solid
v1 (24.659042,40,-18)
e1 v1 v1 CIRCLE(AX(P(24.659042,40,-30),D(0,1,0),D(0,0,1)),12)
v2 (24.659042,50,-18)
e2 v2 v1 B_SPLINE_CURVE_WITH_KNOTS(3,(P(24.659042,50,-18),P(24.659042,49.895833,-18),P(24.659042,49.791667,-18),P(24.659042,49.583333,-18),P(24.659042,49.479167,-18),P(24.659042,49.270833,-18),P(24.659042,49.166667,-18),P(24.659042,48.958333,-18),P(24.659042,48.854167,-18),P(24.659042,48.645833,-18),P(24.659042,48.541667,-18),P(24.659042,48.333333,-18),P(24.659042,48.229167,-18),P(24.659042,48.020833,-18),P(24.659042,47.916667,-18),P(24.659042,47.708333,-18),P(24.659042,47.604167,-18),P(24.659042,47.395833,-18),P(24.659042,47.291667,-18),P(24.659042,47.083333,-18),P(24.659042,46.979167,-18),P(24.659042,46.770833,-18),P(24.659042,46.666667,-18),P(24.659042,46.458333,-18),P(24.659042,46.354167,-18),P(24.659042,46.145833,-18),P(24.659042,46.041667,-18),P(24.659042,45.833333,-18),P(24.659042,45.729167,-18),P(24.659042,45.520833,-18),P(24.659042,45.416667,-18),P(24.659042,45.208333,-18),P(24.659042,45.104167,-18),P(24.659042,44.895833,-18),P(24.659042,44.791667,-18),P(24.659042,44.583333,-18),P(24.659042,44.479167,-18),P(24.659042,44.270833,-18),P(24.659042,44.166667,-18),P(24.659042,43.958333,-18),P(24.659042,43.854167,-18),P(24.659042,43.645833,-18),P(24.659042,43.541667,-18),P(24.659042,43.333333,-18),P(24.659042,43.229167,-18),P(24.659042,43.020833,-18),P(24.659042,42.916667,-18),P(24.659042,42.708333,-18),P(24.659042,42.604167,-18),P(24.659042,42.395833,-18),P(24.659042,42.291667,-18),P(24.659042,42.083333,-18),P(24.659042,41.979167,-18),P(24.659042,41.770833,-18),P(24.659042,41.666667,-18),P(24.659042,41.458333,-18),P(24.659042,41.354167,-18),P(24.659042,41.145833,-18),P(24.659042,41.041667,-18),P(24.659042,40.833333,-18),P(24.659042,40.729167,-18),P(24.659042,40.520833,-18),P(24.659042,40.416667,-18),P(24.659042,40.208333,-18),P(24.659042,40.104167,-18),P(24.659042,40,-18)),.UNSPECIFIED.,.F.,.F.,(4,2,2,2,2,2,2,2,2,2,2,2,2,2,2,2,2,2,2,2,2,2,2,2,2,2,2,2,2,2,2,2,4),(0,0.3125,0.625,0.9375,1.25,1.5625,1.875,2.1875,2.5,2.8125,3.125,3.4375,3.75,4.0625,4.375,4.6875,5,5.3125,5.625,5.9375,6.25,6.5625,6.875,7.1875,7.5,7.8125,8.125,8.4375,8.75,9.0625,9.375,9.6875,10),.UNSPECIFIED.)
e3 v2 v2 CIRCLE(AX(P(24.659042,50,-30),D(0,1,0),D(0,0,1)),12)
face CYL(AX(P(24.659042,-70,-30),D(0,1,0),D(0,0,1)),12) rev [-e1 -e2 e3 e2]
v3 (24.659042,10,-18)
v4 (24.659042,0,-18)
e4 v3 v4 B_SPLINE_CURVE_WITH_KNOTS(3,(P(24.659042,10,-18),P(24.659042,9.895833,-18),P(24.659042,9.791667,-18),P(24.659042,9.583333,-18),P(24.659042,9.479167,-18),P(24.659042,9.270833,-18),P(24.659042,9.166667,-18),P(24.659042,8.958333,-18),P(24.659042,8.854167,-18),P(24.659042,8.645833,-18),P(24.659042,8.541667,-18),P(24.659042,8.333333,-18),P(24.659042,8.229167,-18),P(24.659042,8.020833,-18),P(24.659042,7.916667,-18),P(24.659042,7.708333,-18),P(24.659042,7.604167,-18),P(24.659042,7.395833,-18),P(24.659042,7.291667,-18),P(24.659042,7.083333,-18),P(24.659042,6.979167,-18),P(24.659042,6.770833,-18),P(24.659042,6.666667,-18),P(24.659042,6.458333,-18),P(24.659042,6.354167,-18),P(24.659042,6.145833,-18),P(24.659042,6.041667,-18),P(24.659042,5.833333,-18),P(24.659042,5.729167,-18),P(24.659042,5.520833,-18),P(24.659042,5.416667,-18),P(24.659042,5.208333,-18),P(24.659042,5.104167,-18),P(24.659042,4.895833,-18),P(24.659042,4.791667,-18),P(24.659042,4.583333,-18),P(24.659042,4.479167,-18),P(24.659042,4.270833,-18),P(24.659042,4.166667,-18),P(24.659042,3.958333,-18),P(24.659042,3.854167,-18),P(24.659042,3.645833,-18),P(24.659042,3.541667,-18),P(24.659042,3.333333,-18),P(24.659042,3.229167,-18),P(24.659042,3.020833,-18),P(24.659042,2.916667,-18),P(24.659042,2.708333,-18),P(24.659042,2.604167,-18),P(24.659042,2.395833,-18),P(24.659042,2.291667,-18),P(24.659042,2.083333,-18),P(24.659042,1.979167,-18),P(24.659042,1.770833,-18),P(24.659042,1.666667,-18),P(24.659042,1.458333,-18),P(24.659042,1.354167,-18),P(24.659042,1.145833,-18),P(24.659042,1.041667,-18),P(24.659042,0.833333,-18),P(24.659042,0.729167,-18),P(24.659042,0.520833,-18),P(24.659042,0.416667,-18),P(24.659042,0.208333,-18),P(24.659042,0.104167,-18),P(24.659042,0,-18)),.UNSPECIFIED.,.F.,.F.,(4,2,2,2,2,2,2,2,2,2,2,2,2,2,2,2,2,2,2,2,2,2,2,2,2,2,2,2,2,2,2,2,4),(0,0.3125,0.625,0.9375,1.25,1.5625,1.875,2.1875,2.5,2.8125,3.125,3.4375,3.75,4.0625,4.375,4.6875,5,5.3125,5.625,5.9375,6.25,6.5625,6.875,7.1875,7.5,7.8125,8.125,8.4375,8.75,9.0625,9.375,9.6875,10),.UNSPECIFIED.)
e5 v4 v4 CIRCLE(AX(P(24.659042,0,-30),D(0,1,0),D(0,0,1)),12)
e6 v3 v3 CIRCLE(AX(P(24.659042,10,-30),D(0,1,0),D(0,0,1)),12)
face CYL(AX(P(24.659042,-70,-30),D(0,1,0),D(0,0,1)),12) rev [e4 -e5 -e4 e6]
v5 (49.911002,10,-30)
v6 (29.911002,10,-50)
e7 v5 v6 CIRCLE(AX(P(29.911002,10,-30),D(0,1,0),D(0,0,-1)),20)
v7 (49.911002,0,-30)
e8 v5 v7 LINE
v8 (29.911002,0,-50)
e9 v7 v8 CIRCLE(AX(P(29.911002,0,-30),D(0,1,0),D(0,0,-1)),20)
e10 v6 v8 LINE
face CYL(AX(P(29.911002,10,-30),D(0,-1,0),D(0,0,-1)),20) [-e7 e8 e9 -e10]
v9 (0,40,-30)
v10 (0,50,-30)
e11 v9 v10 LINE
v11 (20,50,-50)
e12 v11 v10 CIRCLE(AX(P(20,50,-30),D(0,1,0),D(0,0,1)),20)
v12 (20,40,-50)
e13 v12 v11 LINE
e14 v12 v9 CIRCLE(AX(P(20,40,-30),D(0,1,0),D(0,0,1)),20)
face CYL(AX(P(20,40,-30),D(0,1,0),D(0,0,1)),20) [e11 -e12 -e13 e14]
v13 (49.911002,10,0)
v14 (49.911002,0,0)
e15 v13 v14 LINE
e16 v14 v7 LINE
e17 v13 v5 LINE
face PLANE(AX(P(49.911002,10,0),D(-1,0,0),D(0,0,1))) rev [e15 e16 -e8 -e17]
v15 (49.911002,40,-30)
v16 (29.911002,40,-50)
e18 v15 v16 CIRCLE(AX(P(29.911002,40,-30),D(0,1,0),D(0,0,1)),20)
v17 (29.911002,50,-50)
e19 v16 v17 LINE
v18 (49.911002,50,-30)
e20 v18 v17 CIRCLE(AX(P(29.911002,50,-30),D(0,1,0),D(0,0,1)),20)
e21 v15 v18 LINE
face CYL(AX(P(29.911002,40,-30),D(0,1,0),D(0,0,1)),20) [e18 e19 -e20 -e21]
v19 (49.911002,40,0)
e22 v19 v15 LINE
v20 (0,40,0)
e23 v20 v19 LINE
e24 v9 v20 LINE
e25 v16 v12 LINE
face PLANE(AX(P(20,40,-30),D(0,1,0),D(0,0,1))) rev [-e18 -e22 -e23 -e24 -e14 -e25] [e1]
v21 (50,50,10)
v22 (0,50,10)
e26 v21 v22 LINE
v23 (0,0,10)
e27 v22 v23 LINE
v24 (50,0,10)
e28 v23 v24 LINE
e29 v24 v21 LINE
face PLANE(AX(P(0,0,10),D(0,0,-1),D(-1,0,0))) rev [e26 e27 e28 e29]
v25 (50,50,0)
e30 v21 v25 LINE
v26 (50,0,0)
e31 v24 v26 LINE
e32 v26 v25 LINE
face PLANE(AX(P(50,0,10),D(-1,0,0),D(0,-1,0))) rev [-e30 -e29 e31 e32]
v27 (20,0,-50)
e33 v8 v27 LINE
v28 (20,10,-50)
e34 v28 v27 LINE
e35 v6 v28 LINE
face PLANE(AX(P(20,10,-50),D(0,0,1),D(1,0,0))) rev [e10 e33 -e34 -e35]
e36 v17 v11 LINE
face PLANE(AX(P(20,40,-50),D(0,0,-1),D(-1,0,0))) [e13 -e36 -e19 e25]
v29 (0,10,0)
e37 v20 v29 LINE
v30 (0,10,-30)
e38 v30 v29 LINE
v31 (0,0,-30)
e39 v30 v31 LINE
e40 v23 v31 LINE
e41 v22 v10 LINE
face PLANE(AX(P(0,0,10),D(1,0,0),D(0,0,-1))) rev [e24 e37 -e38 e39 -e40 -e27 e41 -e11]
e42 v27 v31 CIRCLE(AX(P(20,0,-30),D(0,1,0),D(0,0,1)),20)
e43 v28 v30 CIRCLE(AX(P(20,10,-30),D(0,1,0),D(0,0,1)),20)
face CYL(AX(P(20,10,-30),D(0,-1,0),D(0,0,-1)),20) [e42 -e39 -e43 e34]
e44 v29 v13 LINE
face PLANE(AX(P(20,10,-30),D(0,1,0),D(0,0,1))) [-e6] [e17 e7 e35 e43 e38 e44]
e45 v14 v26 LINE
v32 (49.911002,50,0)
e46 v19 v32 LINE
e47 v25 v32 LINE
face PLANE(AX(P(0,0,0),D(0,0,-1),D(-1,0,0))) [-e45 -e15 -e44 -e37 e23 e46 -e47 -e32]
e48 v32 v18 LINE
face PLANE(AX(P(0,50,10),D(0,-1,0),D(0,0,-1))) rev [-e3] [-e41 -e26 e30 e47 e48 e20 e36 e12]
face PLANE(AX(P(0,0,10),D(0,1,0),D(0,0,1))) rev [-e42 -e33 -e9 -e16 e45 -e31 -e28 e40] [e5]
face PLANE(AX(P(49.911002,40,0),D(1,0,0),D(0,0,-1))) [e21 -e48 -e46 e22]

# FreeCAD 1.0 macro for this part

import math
import FreeCAD as App
import Part
import Sketcher


def add_polygon(sketch, points):
    """Adds a closed chain of lines whose ends are joined by coincident constraints."""
    first, n = sketch.GeometryCount, len(points)
    for a, b in zip(points, points[1:] + points[:1]):
        sketch.addGeometry(Part.LineSegment(App.Vector(*a, 0), App.Vector(*b, 0)), False)
    for i in range(n):
        sketch.addConstraint(Sketcher.Constraint("Coincident", first + i, 2, first + (i + 1) % n, 1))

doc = App.newDocument("Part")
body = doc.addObject("PartDesign::Body", "Body")

# Sketch on XY plane
sketch1 = doc.addObject("Sketcher::SketchObject", "Sketch")
body.addObject(sketch1)
sketch1.AttachmentSupport = (doc.XY_Plane, [""])
sketch1.MapMode = "FlatFace"
add_polygon(sketch1, [(0, 50), (0, 0), (50, 0), (50, 50)])  # lines 0-3
sketch1.addConstraint(Sketcher.Constraint("Vertical", 0))
sketch1.addConstraint(Sketcher.Constraint("Horizontal", 1))
sketch1.addConstraint(Sketcher.Constraint("Vertical", 2))
sketch1.addConstraint(Sketcher.Constraint("Horizontal", 3))
sketch1.addConstraint(Sketcher.Constraint("Coincident", 0, 2, -1, 1))
sketch1.addConstraint(Sketcher.Constraint("Equal", 3, 0))
sketch1.addConstraint(Sketcher.Constraint("DistanceX", 1, 1, 1, 2, 50.0))
pad1 = doc.addObject("PartDesign::Pad", "Pad")
body.addObject(pad1)
pad1.Profile = sketch1
pad1.Length = 10

# Sketch on XZ plane
sketch2 = doc.addObject("Sketcher::SketchObject", "Sketch001")
body.addObject(sketch2)
sketch2.AttachmentSupport = (doc.XZ_Plane, [""])
sketch2.MapMode = "FlatFace"
sketch2.addGeometry(Part.LineSegment(App.Vector(0, 0, 0), App.Vector(49.911002, 0, 0)), False)
sketch2.addGeometry(Part.LineSegment(App.Vector(49.911002, 0, 0), App.Vector(49.911002, -30, 0)), False)
sketch2.addGeometry(Part.ArcOfCircle(Part.Circle(App.Vector(29.911002, -30, 0), App.Vector(0, 0, 1), 20), math.radians(-90), math.radians(0)), False)
sketch2.addGeometry(Part.LineSegment(App.Vector(29.911002, -50, 0), App.Vector(20, -50, 0)), False)
sketch2.addGeometry(Part.ArcOfCircle(Part.Circle(App.Vector(20, -30, 0), App.Vector(0, 0, 1), 20), math.radians(180), math.radians(270)), False)
sketch2.addGeometry(Part.LineSegment(App.Vector(0, -30, 0), App.Vector(0, 0, 0)), False)
sketch2.addConstraint(Sketcher.Constraint("Coincident", 0, 2, 1, 1))
sketch2.addConstraint(Sketcher.Constraint("Tangent", 1, 2, 2, 2))
sketch2.addConstraint(Sketcher.Constraint("Tangent", 2, 1, 3, 1))
sketch2.addConstraint(Sketcher.Constraint("Tangent", 3, 2, 4, 2))
sketch2.addConstraint(Sketcher.Constraint("Tangent", 4, 1, 5, 1))
sketch2.addConstraint(Sketcher.Constraint("Coincident", 5, 2, 0, 1))
sketch2.addConstraint(Sketcher.Constraint("Horizontal", 0))
sketch2.addConstraint(Sketcher.Constraint("Vertical", 1))
sketch2.addConstraint(Sketcher.Constraint("Horizontal", 3))
sketch2.addConstraint(Sketcher.Constraint("Vertical", 5))
sketch2.addConstraint(Sketcher.Constraint("Coincident", 5, 2, -1, 1))
sketch2.addConstraint(Sketcher.Constraint("Equal", 2, 4))
sketch2.addConstraint(Sketcher.Constraint("Radius", 2, 20.0))
sketch2.addConstraint(Sketcher.Constraint("DistanceY", 1, 2, 1, 1, 30.0))
sketch2.addConstraint(Sketcher.Constraint("DistanceX", 0, 1, 0, 2, 49.911002))
pad2 = doc.addObject("PartDesign::Pad", "Pad001")
body.addObject(pad2)
pad2.Profile = sketch2
pad2.Length = 10
pad2.Reversed = True

# Sketch on XZ plane
sketch3 = doc.addObject("Sketcher::SketchObject", "Sketch002")
body.addObject(sketch3)
sketch3.AttachmentSupport = (doc.XZ_Plane, [""])
sketch3.MapMode = "FlatFace"
sketch3.AttachmentOffset = App.Placement(App.Vector(0, 0, -40), App.Rotation())
sketch3.addGeometry(Part.LineSegment(App.Vector(0, 0, 0), App.Vector(49.911002, 0, 0)), False)
sketch3.addGeometry(Part.LineSegment(App.Vector(49.911002, 0, 0), App.Vector(49.911002, -30, 0)), False)
sketch3.addGeometry(Part.ArcOfCircle(Part.Circle(App.Vector(29.911002, -30, 0), App.Vector(0, 0, 1), 20), math.radians(-90), math.radians(0)), False)
sketch3.addGeometry(Part.LineSegment(App.Vector(29.911002, -50, 0), App.Vector(20, -50, 0)), False)
sketch3.addGeometry(Part.ArcOfCircle(Part.Circle(App.Vector(20, -30, 0), App.Vector(0, 0, 1), 20), math.radians(180), math.radians(270)), False)
sketch3.addGeometry(Part.LineSegment(App.Vector(0, -30, 0), App.Vector(0, 0, 0)), False)
sketch3.addConstraint(Sketcher.Constraint("Coincident", 0, 2, 1, 1))
sketch3.addConstraint(Sketcher.Constraint("Tangent", 1, 2, 2, 2))
sketch3.addConstraint(Sketcher.Constraint("Tangent", 2, 1, 3, 1))
sketch3.addConstraint(Sketcher.Constraint("Tangent", 3, 2, 4, 2))
sketch3.addConstraint(Sketcher.Constraint("Tangent", 4, 1, 5, 1))
sketch3.addConstraint(Sketcher.Constraint("Coincident", 5, 2, 0, 1))
sketch3.addConstraint(Sketcher.Constraint("Horizontal", 0))
sketch3.addConstraint(Sketcher.Constraint("Vertical", 1))
sketch3.addConstraint(Sketcher.Constraint("Horizontal", 3))
sketch3.addConstraint(Sketcher.Constraint("Vertical", 5))
sketch3.addConstraint(Sketcher.Constraint("Coincident", 5, 2, -1, 1))
sketch3.addConstraint(Sketcher.Constraint("Equal", 2, 4))
sketch3.addConstraint(Sketcher.Constraint("Radius", 2, 20.0))
sketch3.addConstraint(Sketcher.Constraint("DistanceY", 1, 2, 1, 1, 30.0))
sketch3.addConstraint(Sketcher.Constraint("DistanceX", 0, 1, 0, 2, 49.911002))
pad3 = doc.addObject("PartDesign::Pad", "Pad002")
body.addObject(pad3)
pad3.Profile = sketch3
pad3.Length = 10
pad3.Reversed = True

# Sketch on XZ plane
sketch4 = doc.addObject("Sketcher::SketchObject", "Sketch003")
body.addObject(sketch4)
sketch4.AttachmentSupport = (doc.XZ_Plane, [""])
sketch4.MapMode = "FlatFace"
sketch4.AttachmentOffset = App.Placement(App.Vector(0, 0, -50), App.Rotation())
sketch4.addGeometry(Part.Circle(App.Vector(24.659042, -30, 0), App.Vector(0, 0, 1), 12), False)
sketch4.addConstraint(Sketcher.Constraint("Diameter", 0, 24.0))
sketch4.addConstraint(Sketcher.Constraint("DistanceY", 0, 3, -1, 1, 30.0))
sketch4.addConstraint(Sketcher.Constraint("DistanceX", -1, 1, 0, 3, 24.659042))
pocket1 = doc.addObject("PartDesign::Pocket", "Pocket")
body.addObject(pocket1)
pocket1.Profile = sketch4
pocket1.Length = 120
pocket1.Reversed = True

doc.recompute()
